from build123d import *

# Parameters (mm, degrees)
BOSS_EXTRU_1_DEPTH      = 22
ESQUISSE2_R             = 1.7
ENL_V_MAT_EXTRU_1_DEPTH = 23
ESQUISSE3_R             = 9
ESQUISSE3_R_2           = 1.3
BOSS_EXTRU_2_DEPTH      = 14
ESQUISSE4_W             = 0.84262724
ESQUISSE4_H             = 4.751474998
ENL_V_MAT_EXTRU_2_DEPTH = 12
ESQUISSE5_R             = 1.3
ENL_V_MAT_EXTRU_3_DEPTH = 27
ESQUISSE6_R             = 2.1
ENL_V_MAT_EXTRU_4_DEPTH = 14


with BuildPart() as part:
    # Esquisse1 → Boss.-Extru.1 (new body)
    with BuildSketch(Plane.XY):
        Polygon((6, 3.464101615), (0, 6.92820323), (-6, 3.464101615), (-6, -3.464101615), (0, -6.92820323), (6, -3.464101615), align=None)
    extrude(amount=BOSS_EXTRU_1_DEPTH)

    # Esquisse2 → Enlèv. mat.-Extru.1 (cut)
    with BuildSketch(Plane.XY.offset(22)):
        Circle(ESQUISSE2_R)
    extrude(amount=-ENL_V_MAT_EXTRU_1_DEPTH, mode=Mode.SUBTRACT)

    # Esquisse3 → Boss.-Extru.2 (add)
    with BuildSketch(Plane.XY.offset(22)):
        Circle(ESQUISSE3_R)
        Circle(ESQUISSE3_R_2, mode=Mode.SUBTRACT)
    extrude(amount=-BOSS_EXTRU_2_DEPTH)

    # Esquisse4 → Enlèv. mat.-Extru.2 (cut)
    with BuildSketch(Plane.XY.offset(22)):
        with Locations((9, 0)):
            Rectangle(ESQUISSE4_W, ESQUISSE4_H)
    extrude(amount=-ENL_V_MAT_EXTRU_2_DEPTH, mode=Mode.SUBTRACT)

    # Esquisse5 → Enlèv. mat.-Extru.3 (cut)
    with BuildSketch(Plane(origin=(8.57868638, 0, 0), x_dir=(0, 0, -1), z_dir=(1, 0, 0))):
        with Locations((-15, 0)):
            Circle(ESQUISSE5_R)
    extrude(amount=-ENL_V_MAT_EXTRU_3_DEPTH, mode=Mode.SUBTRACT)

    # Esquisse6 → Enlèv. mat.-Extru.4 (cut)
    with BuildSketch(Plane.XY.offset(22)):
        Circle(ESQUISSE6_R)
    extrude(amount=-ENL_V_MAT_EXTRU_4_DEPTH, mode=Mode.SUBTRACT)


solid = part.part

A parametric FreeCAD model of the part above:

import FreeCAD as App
import Part
import Sketcher
Q = App.Units.Quantity

doc = App.newDocument("Part")
params = doc.addObject("Spreadsheet::Sheet", "Params")
for row, (alias, value) in enumerate([
    ("pad1_length", "22 mm"),
    ("sketch2_diameter", "3.4 mm"),
    ("pocket1_length", "23 mm"),
    ("sketch3_diameter", "18 mm"),
    ("sketch3_diameter2", "2.6 mm"),
    ("pad2_length", "14 mm"),
    ("pocket2_length", "12 mm"),
    ("sketch5_diameter", "2.6 mm"),
    ("pocket3_length", "27 mm"),
    ("sketch6_diameter", "4.2 mm"),
    ("pocket4_length", "14 mm"),
], start=1):
    params.set(f"A{row}", alias)
    params.set(f"B{row}", "=" + value)
    params.setAlias(f"B{row}", alias)

body = doc.addObject("PartDesign::Body", "Body")

# Sketch on XY plane
sketch1 = doc.addObject("Sketcher::SketchObject", "Sketch")
body.addObject(sketch1)
sketch1.AttachmentSupport = (doc.XY_Plane, [""])
sketch1.MapMode = "FlatFace"
sketch1.addGeometry([
    Part.LineSegment(App.Vector(6, 3, 0), App.Vector(0, 7, 0)),  # 0
    Part.LineSegment(App.Vector(0, 7, 0), App.Vector(-6, 3, 0)),  # 1
    Part.LineSegment(App.Vector(-6, 3, 0), App.Vector(-6, -3, 0)),  # 2
    Part.LineSegment(App.Vector(-6, -3, 0), App.Vector(0, -7, 0)),  # 3
    Part.LineSegment(App.Vector(0, -7, 0), App.Vector(6, -3, 0)),  # 4
    Part.LineSegment(App.Vector(6, -3, 0), App.Vector(6, 3, 0)),  # 5
], False)
sketch1.addConstraint([
    Sketcher.Constraint("Coincident", 0, 2, 1, 1),
    Sketcher.Constraint("Coincident", 1, 2, 2, 1),
    Sketcher.Constraint("Coincident", 2, 2, 3, 1),
    Sketcher.Constraint("Coincident", 3, 2, 4, 1),
    Sketcher.Constraint("Coincident", 4, 2, 5, 1),
    Sketcher.Constraint("Coincident", 5, 2, 0, 1),
    Sketcher.Constraint("Vertical", 2),
    Sketcher.Constraint("Vertical", 5),
    Sketcher.Constraint("Symmetric", 0, 2, 3, 2, -1, 1),
    Sketcher.Constraint("Symmetric", 1, 2, 4, 2, -1, 1),
    Sketcher.Constraint("PointOnObject", 0, 2, -2),
    Sketcher.Constraint("Parallel", 0, 3),
    Sketcher.Constraint("Horizontal", 2, 2, 4, 2),
    Sketcher.Constraint("Angle", 0, Q("150 deg")),
    Sketcher.Constraint("DistanceX", 1, 2, -1, 1, Q("6 mm")),
    Sketcher.Constraint("DistanceY", -1, 1, 1, 2, Q("3.464102 mm")),
])
pad1 = doc.addObject("PartDesign::Pad", "Pad")
body.addObject(pad1)
pad1.Profile = sketch1
pad1.setExpression("Length", "Params.pad1_length")

# Sketch on XY plane
sketch2 = doc.addObject("Sketcher::SketchObject", "Sketch001")
body.addObject(sketch2)
sketch2.AttachmentSupport = (doc.XY_Plane, [""])
sketch2.MapMode = "FlatFace"
sketch2.AttachmentOffset = App.Placement(App.Vector(0, 0, 22), App.Rotation())
sketch2.addGeometry(Part.Circle(App.Vector(0, 0, 0), App.Vector(0, 0, 1), 1.7), False)
sketch2.addConstraint([
    Sketcher.Constraint("Coincident", 0, 3, -1, 1),
    Sketcher.Constraint("Diameter", 0, Q("3.4 mm")),
])
sketch2.setExpression("Constraints[1]", "Params.sketch2_diameter")
pocket1 = doc.addObject("PartDesign::Pocket", "Pocket")
body.addObject(pocket1)
pocket1.Profile = sketch2
pocket1.setExpression("Length", "Params.pocket1_length")

# Sketch on XY plane
sketch3 = doc.addObject("Sketcher::SketchObject", "Sketch002")
body.addObject(sketch3)
sketch3.AttachmentSupport = (doc.XY_Plane, [""])
sketch3.MapMode = "FlatFace"
sketch3.AttachmentOffset = App.Placement(App.Vector(0, 0, 22), App.Rotation())
sketch3.addGeometry([
    Part.Circle(App.Vector(0, 0, 0), App.Vector(0, 0, 1), 9),
    Part.Circle(App.Vector(0, 0, 0), App.Vector(0, 0, 1), 1.3),
], False)
sketch3.addConstraint([
    Sketcher.Constraint("Coincident", 0, 3, -1, 1),
    Sketcher.Constraint("Coincident", 1, 3, -1, 1),
    Sketcher.Constraint("Diameter", 0, Q("18 mm")),
    Sketcher.Constraint("Diameter", 1, Q("2.6 mm")),
])
sketch3.setExpression("Constraints[2]", "Params.sketch3_diameter")
sketch3.setExpression("Constraints[3]", "Params.sketch3_diameter2")
pad2 = doc.addObject("PartDesign::Pad", "Pad001")
body.addObject(pad2)
pad2.Profile = sketch3
pad2.setExpression("Length", "Params.pad2_length")
pad2.Reversed = True

# Sketch on XY plane
sketch4 = doc.addObject("Sketcher::SketchObject", "Sketch003")
body.addObject(sketch4)
sketch4.AttachmentSupport = (doc.XY_Plane, [""])
sketch4.MapMode = "FlatFace"
sketch4.AttachmentOffset = App.Placement(App.Vector(0, 0, 22), App.Rotation())
sketch4.addGeometry([
    Part.LineSegment(App.Vector(8.6, 2.4, 0), App.Vector(8.6, -2.4, 0)),
    Part.LineSegment(App.Vector(8.6, -2.4, 0), App.Vector(9.4, -2.4, 0)),
    Part.LineSegment(App.Vector(9.4, -2.4, 0), App.Vector(9.4, 2.4, 0)),
    Part.LineSegment(App.Vector(9.4, 2.4, 0), App.Vector(8.6, 2.4, 0)),
], False)
sketch4.addConstraint([
    Sketcher.Constraint("Coincident", 0, 2, 1, 1),
    Sketcher.Constraint("Coincident", 1, 2, 2, 1),
    Sketcher.Constraint("Coincident", 2, 2, 3, 1),
    Sketcher.Constraint("Coincident", 3, 2, 0, 1),
    Sketcher.Constraint("Vertical", 0),
    Sketcher.Constraint("Horizontal", 1),
    Sketcher.Constraint("Vertical", 2),
    Sketcher.Constraint("Horizontal", 3),
    Sketcher.Constraint("DistanceX", 1, 1, 1, 2, Q("0.842627 mm")),
    Sketcher.Constraint("DistanceY", 0, 2, 0, 1, Q("4.751475 mm")),
    Sketcher.Constraint("DistanceX", -1, 1, 0, 2, Q("8.578686 mm")),
    Sketcher.Constraint("DistanceY", 0, 2, -1, 1, Q("2.375737 mm")),
])
pocket2 = doc.addObject("PartDesign::Pocket", "Pocket001")
body.addObject(pocket2)
pocket2.Profile = sketch4
pocket2.setExpression("Length", "Params.pocket2_length")

# Sketch on YZ plane
sketch5 = doc.addObject("Sketcher::SketchObject", "Sketch004")
body.addObject(sketch5)
sketch5.AttachmentSupport = (doc.YZ_Plane, [""])
sketch5.MapMode = "FlatFace"
sketch5.AttachmentOffset = App.Placement(App.Vector(0, 0, 8.578686), App.Rotation())
sketch5.addGeometry(Part.Circle(App.Vector(0, 15, 0), App.Vector(0, 0, 1), 1.3), False)
sketch5.addConstraint([
    Sketcher.Constraint("PointOnObject", 0, 3, -2),
    Sketcher.Constraint("Diameter", 0, Q("2.6 mm")),
    Sketcher.Constraint("DistanceY", -1, 1, 0, 3, Q("15 mm")),
])
sketch5.setExpression("Constraints[1]", "Params.sketch5_diameter")
pocket3 = doc.addObject("PartDesign::Pocket", "Pocket002")
body.addObject(pocket3)
pocket3.Profile = sketch5
pocket3.setExpression("Length", "Params.pocket3_length")

# Sketch on XY plane
sketch6 = doc.addObject("Sketcher::SketchObject", "Sketch005")
body.addObject(sketch6)
sketch6.AttachmentSupport = (doc.XY_Plane, [""])
sketch6.MapMode = "FlatFace"
sketch6.AttachmentOffset = App.Placement(App.Vector(0, 0, 22), App.Rotation())
sketch6.addGeometry(Part.Circle(App.Vector(0, 0, 0), App.Vector(0, 0, 1), 2.1), False)
sketch6.addConstraint([
    Sketcher.Constraint("Coincident", 0, 3, -1, 1),
    Sketcher.Constraint("Diameter", 0, Q("4.2 mm")),
])
sketch6.setExpression("Constraints[1]", "Params.sketch6_diameter")
pocket4 = doc.addObject("PartDesign::Pocket", "Pocket003")
body.addObject(pocket4)
pocket4.Profile = sketch6
pocket4.setExpression("Length", "Params.pocket4_length")

doc.recompute()
